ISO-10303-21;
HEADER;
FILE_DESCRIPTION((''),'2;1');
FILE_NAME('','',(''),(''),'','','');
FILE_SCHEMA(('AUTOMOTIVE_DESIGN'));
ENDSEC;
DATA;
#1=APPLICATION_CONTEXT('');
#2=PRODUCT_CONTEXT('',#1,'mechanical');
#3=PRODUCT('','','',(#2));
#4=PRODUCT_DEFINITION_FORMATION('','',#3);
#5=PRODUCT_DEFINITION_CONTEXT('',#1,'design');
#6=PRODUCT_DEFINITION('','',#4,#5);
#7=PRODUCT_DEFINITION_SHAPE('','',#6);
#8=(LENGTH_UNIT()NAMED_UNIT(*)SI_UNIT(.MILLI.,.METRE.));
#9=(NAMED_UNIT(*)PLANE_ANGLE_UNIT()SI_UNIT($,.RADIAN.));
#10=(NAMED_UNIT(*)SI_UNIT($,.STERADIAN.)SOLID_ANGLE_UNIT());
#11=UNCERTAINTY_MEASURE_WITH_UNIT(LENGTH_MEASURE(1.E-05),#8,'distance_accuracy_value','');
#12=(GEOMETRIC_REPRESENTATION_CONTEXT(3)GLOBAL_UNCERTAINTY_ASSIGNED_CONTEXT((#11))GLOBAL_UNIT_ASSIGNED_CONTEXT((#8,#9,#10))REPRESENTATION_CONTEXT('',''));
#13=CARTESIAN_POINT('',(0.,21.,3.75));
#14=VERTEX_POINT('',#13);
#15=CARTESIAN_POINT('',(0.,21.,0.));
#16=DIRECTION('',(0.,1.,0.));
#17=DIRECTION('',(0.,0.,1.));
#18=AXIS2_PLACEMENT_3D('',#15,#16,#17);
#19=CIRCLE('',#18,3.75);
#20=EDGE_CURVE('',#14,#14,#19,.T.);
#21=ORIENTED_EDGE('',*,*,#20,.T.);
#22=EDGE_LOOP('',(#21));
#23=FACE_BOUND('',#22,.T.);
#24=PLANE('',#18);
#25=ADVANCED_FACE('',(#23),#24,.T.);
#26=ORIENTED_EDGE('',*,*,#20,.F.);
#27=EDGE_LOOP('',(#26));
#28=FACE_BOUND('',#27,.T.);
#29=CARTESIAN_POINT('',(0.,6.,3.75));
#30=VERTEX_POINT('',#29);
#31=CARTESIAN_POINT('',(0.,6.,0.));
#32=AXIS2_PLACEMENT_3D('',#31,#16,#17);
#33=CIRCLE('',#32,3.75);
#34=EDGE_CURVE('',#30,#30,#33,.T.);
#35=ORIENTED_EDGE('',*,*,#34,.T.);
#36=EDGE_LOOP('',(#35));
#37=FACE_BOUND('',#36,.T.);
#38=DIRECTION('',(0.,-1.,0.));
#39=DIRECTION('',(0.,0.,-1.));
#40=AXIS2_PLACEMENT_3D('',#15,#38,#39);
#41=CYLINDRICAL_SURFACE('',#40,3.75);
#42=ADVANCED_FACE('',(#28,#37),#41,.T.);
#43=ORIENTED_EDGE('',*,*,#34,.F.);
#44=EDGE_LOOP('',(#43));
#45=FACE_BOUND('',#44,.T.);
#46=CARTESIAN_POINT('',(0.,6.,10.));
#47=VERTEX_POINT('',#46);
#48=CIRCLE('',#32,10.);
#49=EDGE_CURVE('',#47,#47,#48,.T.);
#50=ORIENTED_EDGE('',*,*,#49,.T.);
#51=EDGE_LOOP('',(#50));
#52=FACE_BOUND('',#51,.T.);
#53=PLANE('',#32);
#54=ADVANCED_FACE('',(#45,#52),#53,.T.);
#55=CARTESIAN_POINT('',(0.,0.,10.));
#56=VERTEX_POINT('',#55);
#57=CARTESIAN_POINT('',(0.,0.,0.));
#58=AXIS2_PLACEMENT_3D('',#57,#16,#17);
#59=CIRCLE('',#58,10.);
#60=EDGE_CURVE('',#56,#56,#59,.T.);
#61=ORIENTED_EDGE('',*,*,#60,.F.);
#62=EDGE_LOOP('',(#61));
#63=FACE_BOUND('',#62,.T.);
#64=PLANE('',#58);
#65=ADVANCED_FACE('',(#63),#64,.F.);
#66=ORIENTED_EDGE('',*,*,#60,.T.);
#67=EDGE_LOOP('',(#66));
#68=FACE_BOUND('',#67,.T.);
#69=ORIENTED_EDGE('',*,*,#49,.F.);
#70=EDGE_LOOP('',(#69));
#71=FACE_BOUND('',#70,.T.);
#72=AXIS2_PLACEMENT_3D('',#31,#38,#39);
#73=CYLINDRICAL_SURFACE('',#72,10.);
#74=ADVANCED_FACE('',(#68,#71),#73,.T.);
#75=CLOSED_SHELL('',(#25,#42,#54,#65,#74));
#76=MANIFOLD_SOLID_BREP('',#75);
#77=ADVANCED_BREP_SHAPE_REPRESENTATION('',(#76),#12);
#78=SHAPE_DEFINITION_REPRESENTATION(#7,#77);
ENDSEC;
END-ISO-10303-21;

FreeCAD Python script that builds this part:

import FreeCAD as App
import Part
import Sketcher
from FreeCAD import Vector
Q = App.Units.Quantity

doc = App.newDocument("Part")
body = doc.addObject("PartDesign::Body", "Body")

# Sketch on XZ plane
sketch1 = body.newObject("Sketcher::SketchObject", "Sketch")
sketch1.AttachmentSupport = (doc.getObject("XZ_Plane"), [""])
sketch1.MapMode = "FlatFace"
sketch1.addGeometry(Part.Circle(Vector(0, 0, 0), Vector(0, 0, 1), 10), False)
sketch1.addConstraint([
    Sketcher.Constraint("Coincident", 0, 3, -1, 1),
    Sketcher.Constraint("Diameter", 0, Q("20 mm")),
])
pad1 = body.newObject("PartDesign::Pad", "Pad")
pad1.Profile = sketch1
pad1.Length = 6
pad1.Reversed = True

# Sketch on XZ plane
sketch2 = body.newObject("Sketcher::SketchObject", "Sketch001")
sketch2.AttachmentSupport = (doc.getObject("XZ_Plane"), [""])
sketch2.MapMode = "FlatFace"
sketch2.AttachmentOffset = App.Placement(Vector(0, 0, -6), App.Rotation())
sketch2.addGeometry(Part.Circle(Vector(0, 0, 0), Vector(0, 0, 1), 3.8), False)
sketch2.addConstraint([
    Sketcher.Constraint("Coincident", 0, 3, -1, 1),
    Sketcher.Constraint("Diameter", 0, Q("7.5 mm")),
])
pad2 = body.newObject("PartDesign::Pad", "Pad001")
pad2.Profile = sketch2
pad2.Length = 15
pad2.Reversed = True

doc.recompute()
